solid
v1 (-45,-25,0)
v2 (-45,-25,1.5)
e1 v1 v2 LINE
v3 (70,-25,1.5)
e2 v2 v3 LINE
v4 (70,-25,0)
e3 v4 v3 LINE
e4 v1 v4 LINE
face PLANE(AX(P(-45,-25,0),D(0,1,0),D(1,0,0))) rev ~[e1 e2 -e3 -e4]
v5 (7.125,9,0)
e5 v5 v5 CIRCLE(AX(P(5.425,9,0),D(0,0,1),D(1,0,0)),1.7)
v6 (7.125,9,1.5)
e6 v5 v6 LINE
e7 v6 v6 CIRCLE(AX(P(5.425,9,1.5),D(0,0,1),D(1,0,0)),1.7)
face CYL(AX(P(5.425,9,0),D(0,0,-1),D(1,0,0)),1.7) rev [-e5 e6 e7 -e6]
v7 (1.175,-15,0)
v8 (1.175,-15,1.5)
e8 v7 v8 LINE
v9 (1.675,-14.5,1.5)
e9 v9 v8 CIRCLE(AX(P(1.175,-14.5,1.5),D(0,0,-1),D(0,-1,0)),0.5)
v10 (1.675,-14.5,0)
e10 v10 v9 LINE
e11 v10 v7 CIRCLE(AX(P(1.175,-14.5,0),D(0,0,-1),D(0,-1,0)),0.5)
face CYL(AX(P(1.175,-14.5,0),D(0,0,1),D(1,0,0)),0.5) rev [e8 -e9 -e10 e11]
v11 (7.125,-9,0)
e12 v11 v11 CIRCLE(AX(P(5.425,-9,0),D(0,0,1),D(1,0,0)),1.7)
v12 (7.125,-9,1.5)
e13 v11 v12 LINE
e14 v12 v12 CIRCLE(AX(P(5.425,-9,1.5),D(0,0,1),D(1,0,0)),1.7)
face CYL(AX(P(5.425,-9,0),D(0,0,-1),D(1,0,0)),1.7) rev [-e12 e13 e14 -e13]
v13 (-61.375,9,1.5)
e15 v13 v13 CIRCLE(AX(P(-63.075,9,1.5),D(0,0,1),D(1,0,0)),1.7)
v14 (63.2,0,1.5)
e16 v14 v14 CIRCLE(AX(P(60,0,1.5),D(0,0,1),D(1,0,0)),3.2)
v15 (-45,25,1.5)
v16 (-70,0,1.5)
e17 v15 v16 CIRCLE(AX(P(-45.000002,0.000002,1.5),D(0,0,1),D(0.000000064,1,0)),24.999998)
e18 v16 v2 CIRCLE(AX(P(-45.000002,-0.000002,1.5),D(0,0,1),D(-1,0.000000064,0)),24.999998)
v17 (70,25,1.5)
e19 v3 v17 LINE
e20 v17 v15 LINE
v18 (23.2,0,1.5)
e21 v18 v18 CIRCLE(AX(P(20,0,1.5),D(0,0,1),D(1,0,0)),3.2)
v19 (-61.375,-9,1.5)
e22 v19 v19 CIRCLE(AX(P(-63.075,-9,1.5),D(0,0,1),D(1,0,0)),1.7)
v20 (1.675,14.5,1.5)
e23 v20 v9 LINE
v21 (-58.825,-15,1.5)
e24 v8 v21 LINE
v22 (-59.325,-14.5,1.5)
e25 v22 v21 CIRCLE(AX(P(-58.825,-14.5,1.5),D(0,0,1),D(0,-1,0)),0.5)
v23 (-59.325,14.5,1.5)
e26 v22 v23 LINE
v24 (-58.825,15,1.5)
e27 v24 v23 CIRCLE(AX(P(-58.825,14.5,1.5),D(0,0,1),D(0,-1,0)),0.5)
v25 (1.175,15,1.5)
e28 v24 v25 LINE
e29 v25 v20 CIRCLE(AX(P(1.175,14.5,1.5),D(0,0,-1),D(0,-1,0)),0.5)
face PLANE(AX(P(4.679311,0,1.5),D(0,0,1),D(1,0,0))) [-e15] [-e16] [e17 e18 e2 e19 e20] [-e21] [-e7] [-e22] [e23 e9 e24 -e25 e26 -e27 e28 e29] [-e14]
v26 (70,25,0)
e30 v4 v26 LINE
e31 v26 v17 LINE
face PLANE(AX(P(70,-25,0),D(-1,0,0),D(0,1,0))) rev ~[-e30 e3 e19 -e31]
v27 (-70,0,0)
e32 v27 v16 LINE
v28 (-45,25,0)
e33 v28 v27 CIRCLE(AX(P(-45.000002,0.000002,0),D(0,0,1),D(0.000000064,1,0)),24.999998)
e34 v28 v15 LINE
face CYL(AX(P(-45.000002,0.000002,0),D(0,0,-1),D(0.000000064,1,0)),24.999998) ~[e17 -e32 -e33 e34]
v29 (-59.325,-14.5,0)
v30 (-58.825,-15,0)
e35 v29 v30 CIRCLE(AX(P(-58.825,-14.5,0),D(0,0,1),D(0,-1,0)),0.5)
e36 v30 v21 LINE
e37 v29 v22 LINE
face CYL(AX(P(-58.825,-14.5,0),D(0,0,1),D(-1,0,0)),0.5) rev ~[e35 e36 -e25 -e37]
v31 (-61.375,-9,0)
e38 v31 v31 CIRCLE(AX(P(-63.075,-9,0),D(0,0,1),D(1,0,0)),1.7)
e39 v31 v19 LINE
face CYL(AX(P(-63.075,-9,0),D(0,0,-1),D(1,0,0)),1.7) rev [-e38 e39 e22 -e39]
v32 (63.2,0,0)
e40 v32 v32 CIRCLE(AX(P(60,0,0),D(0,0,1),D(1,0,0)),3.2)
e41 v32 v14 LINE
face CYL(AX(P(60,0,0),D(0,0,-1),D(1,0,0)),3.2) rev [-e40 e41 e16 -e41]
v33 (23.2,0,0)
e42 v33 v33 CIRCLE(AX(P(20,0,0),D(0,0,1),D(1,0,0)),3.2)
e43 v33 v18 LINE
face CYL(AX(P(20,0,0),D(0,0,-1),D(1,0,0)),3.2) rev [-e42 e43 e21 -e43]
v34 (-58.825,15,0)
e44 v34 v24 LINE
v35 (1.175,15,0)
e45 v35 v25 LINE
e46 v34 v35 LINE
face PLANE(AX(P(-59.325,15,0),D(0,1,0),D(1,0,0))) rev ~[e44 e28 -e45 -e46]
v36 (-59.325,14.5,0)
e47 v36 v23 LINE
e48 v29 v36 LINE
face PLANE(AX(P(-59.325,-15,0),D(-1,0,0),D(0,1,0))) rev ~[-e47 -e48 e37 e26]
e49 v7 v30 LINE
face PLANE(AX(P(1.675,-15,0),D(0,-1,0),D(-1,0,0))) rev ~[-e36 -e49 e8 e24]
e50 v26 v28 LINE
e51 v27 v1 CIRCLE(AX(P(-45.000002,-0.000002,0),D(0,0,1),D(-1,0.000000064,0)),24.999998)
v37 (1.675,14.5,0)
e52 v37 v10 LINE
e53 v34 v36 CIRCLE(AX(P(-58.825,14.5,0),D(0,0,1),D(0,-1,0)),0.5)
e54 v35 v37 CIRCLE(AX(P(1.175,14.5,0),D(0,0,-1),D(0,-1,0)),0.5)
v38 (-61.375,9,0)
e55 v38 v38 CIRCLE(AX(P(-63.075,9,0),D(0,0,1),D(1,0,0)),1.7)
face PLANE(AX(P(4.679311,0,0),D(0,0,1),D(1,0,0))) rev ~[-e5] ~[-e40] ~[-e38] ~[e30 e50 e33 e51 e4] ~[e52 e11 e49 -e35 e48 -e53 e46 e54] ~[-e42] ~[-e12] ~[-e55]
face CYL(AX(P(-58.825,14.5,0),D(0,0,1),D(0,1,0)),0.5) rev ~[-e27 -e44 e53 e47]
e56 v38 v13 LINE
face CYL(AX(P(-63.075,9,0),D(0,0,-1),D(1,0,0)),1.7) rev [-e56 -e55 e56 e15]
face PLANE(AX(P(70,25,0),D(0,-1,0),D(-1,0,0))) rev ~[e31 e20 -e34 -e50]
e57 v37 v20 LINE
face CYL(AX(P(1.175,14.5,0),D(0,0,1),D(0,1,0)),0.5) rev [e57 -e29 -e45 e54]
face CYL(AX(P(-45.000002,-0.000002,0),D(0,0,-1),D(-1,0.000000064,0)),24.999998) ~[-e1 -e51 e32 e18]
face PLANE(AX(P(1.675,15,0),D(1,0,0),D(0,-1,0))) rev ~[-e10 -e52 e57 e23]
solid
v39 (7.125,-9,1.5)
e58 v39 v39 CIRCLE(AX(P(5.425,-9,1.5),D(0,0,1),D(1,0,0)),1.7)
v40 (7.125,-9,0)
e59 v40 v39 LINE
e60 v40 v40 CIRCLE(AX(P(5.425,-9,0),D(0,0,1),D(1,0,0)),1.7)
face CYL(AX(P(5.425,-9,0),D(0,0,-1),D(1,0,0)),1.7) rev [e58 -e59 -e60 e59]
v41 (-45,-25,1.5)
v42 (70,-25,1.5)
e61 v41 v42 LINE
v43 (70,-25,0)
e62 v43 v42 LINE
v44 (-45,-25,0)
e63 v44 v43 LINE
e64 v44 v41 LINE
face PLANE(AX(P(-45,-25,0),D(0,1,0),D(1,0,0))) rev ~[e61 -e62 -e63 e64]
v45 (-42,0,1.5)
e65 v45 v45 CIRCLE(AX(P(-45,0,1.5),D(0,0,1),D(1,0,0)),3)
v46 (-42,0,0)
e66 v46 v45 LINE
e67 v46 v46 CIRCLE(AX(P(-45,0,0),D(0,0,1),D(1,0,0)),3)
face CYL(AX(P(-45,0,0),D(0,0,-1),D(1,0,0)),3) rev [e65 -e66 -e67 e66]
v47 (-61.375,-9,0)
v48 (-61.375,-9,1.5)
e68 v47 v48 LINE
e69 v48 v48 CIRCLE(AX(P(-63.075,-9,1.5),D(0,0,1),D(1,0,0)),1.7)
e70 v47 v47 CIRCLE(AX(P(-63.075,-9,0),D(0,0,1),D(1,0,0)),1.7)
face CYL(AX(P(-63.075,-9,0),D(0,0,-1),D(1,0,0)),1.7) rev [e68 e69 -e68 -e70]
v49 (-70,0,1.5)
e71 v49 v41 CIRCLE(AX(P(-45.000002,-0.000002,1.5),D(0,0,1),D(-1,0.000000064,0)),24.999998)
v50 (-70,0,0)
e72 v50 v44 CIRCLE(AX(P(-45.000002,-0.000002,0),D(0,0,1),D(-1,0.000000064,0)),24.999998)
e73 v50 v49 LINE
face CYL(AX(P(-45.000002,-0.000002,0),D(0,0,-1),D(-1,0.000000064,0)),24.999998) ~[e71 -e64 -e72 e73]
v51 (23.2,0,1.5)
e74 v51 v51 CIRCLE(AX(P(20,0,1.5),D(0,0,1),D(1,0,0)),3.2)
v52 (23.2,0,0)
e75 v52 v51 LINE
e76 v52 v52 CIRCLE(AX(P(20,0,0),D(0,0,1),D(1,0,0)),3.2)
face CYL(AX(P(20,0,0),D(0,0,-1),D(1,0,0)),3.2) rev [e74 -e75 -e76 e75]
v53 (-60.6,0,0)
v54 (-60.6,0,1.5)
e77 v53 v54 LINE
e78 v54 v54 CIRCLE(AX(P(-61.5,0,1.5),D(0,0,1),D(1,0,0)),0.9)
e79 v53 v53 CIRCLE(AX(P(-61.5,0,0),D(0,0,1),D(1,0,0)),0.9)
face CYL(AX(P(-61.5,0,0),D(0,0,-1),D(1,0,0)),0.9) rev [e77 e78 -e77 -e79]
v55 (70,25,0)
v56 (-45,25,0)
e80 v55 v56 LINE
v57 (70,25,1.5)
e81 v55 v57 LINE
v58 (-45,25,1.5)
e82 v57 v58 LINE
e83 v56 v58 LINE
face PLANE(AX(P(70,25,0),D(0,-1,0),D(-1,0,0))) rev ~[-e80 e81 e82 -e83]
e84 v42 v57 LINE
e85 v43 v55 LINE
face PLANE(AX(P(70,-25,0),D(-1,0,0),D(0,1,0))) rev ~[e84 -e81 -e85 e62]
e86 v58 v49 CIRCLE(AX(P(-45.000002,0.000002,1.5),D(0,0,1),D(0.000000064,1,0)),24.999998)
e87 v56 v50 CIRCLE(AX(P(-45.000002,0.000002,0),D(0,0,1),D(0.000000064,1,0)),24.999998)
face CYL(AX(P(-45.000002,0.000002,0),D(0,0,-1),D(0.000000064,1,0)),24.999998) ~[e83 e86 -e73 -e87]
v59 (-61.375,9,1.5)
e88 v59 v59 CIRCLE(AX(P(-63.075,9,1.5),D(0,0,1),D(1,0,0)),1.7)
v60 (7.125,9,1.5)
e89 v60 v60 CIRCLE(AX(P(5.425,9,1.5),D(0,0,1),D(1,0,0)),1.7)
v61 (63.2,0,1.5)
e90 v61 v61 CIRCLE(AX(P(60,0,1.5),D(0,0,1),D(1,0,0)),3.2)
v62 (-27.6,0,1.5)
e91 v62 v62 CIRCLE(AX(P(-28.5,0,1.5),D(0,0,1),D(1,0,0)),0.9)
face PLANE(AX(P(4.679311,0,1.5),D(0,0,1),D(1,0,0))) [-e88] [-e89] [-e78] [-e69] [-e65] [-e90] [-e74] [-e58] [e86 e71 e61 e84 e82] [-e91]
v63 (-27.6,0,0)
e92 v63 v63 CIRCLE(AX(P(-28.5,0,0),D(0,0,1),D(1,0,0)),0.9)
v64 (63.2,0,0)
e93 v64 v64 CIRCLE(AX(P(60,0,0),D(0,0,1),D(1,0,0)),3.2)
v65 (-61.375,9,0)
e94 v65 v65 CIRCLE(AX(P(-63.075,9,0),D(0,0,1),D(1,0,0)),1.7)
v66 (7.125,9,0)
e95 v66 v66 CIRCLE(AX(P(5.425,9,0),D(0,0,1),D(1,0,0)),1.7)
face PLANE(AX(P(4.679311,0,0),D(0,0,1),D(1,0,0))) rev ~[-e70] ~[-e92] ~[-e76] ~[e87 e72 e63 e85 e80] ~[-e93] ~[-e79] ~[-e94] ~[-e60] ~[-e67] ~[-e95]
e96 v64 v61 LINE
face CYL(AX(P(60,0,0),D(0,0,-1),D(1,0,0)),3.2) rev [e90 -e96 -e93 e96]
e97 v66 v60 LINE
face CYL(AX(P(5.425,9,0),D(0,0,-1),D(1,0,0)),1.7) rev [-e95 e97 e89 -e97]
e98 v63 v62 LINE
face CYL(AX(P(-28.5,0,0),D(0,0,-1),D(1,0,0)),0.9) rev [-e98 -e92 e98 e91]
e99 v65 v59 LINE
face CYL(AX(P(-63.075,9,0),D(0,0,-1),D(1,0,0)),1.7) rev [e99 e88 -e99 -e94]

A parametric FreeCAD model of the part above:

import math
import FreeCAD as App
import Part
import Sketcher
from FreeCAD import Vector
Q = App.Units.Quantity


def edges_at(feature, points):
    """Names of the edges that pass closest to the given points."""
    edges = feature.Shape.Edges
    near = lambda p: min(range(len(edges)), key=lambda i: edges[i].distToShape(Part.Vertex(*p))[0])
    return sorted({f"Edge{near(p) + 1}" for p in points})

doc = App.newDocument("Part")
body = doc.addObject("PartDesign::Body", "Body")

sketch1 = doc.addObject("Sketcher::SketchObject", "Sketch")
body.addObject(sketch1)
sketch1.AttachmentSupport = (doc.XY_Plane, [""])
sketch1.MapMode = "FlatFace"
sketch1.addGeometry(Part.LineSegment(Vector(70, -25, 0), Vector(70, 25, 0)), False)
sketch1.addGeometry(Part.LineSegment(Vector(70, 25, 0), Vector(-45, 25, 0)), False)
sketch1.addGeometry(Part.ArcOfCircle(Part.Circle(Vector(-45, 0, 0), Vector(0, 0, 1), 25), math.radians(90), math.radians(180)), False)
sketch1.addGeometry(Part.ArcOfCircle(Part.Circle(Vector(-45, 0, 0), Vector(0, 0, 1), 25), math.radians(180), math.radians(270)), False)
sketch1.addGeometry(Part.LineSegment(Vector(-45, -25, 0), Vector(70, -25, 0)), False)
sketch1.addGeometry(Part.Circle(Vector(-63.1, -9, 0), Vector(0, 0, 1), 1.7), False)
sketch1.addGeometry(Part.Circle(Vector(-61.5, 0, 0), Vector(0, 0, 1), 0.9), False)
sketch1.addGeometry(Part.Circle(Vector(-45, 0, 0), Vector(0, 0, 1), 3), False)
sketch1.addGeometry(Part.Circle(Vector(-28.5, 0, 0), Vector(0, 0, 1), 0.9), False)
sketch1.addGeometry(Part.Circle(Vector(5.4, -9, 0), Vector(0, 0, 1), 1.7), False)
sketch1.addGeometry(Part.Circle(Vector(20, 0, 0), Vector(0, 0, 1), 3.2), False)
sketch1.addGeometry(Part.Circle(Vector(60, 0, 0), Vector(0, 0, 1), 3.2), False)
sketch1.addGeometry(Part.Circle(Vector(-63.1, 9, 0), Vector(0, 0, 1), 1.7), False)
sketch1.addGeometry(Part.Circle(Vector(5.4, 9, 0), Vector(0, 0, 1), 1.7), False)
sketch1.addConstraint(Sketcher.Constraint("Coincident", 0, 2, 1, 1))
sketch1.addConstraint(Sketcher.Constraint("Tangent", 1, 2, 2, 1))
sketch1.addConstraint(Sketcher.Constraint("Tangent", 2, 2, 3, 1))
sketch1.addConstraint(Sketcher.Constraint("Tangent", 3, 2, 4, 1))
sketch1.addConstraint(Sketcher.Constraint("Coincident", 4, 2, 0, 1))
sketch1.addConstraint(Sketcher.Constraint("Vertical", 0))
sketch1.addConstraint(Sketcher.Constraint("Horizontal", 1))
sketch1.addConstraint(Sketcher.Constraint("Horizontal", 4))
sketch1.addConstraint(Sketcher.Constraint("Coincident", 7, 3, 2, 3))
sketch1.addConstraint(Sketcher.Constraint("Equal", 2, 3))
sketch1.addConstraint(Sketcher.Constraint("Equal", 6, 8))
sketch1.addConstraint(Sketcher.Constraint("Equal", 5, 9))
sketch1.addConstraint(Sketcher.Constraint("Equal", 10, 11))
sketch1.addConstraint(Sketcher.Constraint("Equal", 9, 12))
sketch1.addConstraint(Sketcher.Constraint("Equal", 12, 13))
sketch1.addConstraint(Sketcher.Constraint("Symmetric", 5, 3, 12, 3, -1))
sketch1.addConstraint(Sketcher.Constraint("Symmetric", 9, 3, 13, 3, -1))
sketch1.addConstraint(Sketcher.Constraint("PointOnObject", 2, 3, -1))
sketch1.addConstraint(Sketcher.Constraint("PointOnObject", 6, 3, -1))
sketch1.addConstraint(Sketcher.Constraint("PointOnObject", 8, 3, -1))
sketch1.addConstraint(Sketcher.Constraint("PointOnObject", 10, 3, -1))
sketch1.addConstraint(Sketcher.Constraint("PointOnObject", 11, 3, -1))
sketch1.addConstraint(Sketcher.Constraint("PointOnObject", 2, 2, -1))
sketch1.addConstraint(Sketcher.Constraint("Horizontal", 5, 3, 9, 3))
sketch1.addConstraint(Sketcher.Constraint("Diameter", 7, Q("6 mm")))
sketch1.addConstraint(Sketcher.Constraint("Radius", 2, Q("24.999998 mm")))
sketch1.addConstraint(Sketcher.Constraint("Diameter", 5, Q("3.4 mm")))
sketch1.addConstraint(Sketcher.Constraint("Diameter", 6, Q("1.8 mm")))
sketch1.addConstraint(Sketcher.Constraint("Diameter", 10, Q("6.4 mm")))
sketch1.addConstraint(Sketcher.Constraint("DistanceX", 1, 2, 1, 1, Q("115 mm")))
sketch1.addConstraint(Sketcher.Constraint("DistanceX", 2, 3, -1, 1, Q("45.000002 mm")))
sketch1.addConstraint(Sketcher.Constraint("DistanceY", 5, 3, -1, 1, Q("9 mm")))
sketch1.addConstraint(Sketcher.Constraint("DistanceX", -1, 1, 10, 3, Q("20 mm")))
sketch1.addConstraint(Sketcher.Constraint("DistanceX", -1, 1, 11, 3, Q("60 mm")))
sketch1.addConstraint(Sketcher.Constraint("DistanceX", 6, 3, 8, 3, Q("33 mm")))
sketch1.addConstraint(Sketcher.Constraint("DistanceX", 6, 3, -1, 1, Q("61.5 mm")))
sketch1.addConstraint(Sketcher.Constraint("DistanceX", 5, 3, -1, 1, Q("63.075 mm")))
sketch1.addConstraint(Sketcher.Constraint("DistanceX", -1, 1, 9, 3, Q("5.425 mm")))
pad1 = doc.addObject("PartDesign::Pad", "Pad")
body.addObject(pad1)
pad1.Profile = sketch1
pad1.Length = 1.5
body2 = doc.addObject("PartDesign::Body", "Body001")

sketch2 = doc.addObject("Sketcher::SketchObject", "Sketch001")
body2.addObject(sketch2)
sketch2.AttachmentSupport = (doc.getObject("XY_Plane001"), [""])
sketch2.MapMode = "FlatFace"
sketch2.addGeometry(Part.LineSegment(Vector(70, -25, 0), Vector(70, 25, 0)), False)
sketch2.addGeometry(Part.LineSegment(Vector(70, 25, 0), Vector(-45, 25, 0)), False)
sketch2.addGeometry(Part.ArcOfCircle(Part.Circle(Vector(-45, 0, 0), Vector(0, 0, 1), 25), math.radians(90), math.radians(180)), False)
sketch2.addGeometry(Part.ArcOfCircle(Part.Circle(Vector(-45, 0, 0), Vector(0, 0, 1), 25), math.radians(180), math.radians(270)), False)
sketch2.addGeometry(Part.LineSegment(Vector(-45, -25, 0), Vector(70, -25, 0)), False)
sketch2.addGeometry(Part.Circle(Vector(-63.1, -9, 0), Vector(0, 0, 1), 1.7), False)
sketch2.addGeometry(Part.Circle(Vector(5.4, -9, 0), Vector(0, 0, 1), 1.7), False)
sketch2.addGeometry(Part.LineSegment(Vector(-59.3, 15, 0), Vector(1.7, 15, 0)), False)
sketch2.addGeometry(Part.LineSegment(Vector(1.7, 15, 0), Vector(1.7, -15, 0)), False)
sketch2.addGeometry(Part.LineSegment(Vector(1.7, -15, 0), Vector(-59.3, -15, 0)), False)
sketch2.addGeometry(Part.LineSegment(Vector(-59.3, -15, 0), Vector(-59.3, 15, 0)), False)
sketch2.addGeometry(Part.Circle(Vector(-63.1, 9, 0), Vector(0, 0, 1), 1.7), False)
sketch2.addGeometry(Part.Circle(Vector(20, 0, 0), Vector(0, 0, 1), 3.2), False)
sketch2.addGeometry(Part.Circle(Vector(60, 0, 0), Vector(0, 0, 1), 3.2), False)
sketch2.addGeometry(Part.Circle(Vector(5.4, 9, 0), Vector(0, 0, 1), 1.7), False)
sketch2.addConstraint(Sketcher.Constraint("Coincident", 0, 2, 1, 1))
sketch2.addConstraint(Sketcher.Constraint("Tangent", 1, 2, 2, 1))
sketch2.addConstraint(Sketcher.Constraint("Tangent", 2, 2, 3, 1))
sketch2.addConstraint(Sketcher.Constraint("Tangent", 3, 2, 4, 1))
sketch2.addConstraint(Sketcher.Constraint("Coincident", 4, 2, 0, 1))
sketch2.addConstraint(Sketcher.Constraint("Coincident", 7, 2, 8, 1))
sketch2.addConstraint(Sketcher.Constraint("Coincident", 8, 2, 9, 1))
sketch2.addConstraint(Sketcher.Constraint("Coincident", 9, 2, 10, 1))
sketch2.addConstraint(Sketcher.Constraint("Coincident", 10, 2, 7, 1))
sketch2.addConstraint(Sketcher.Constraint("Vertical", 0))
sketch2.addConstraint(Sketcher.Constraint("Horizontal", 1))
sketch2.addConstraint(Sketcher.Constraint("Horizontal", 4))
sketch2.addConstraint(Sketcher.Constraint("Horizontal", 7))
sketch2.addConstraint(Sketcher.Constraint("Vertical", 8))
sketch2.addConstraint(Sketcher.Constraint("Horizontal", 9))
sketch2.addConstraint(Sketcher.Constraint("Vertical", 10))
sketch2.addConstraint(Sketcher.Constraint("Equal", 2, 3))
sketch2.addConstraint(Sketcher.Constraint("Equal", 5, 6))
sketch2.addConstraint(Sketcher.Constraint("Equal", 6, 11))
sketch2.addConstraint(Sketcher.Constraint("Equal", 12, 13))
sketch2.addConstraint(Sketcher.Constraint("Equal", 11, 14))
sketch2.addConstraint(Sketcher.Constraint("Symmetric", 5, 3, 11, 3, -1))
sketch2.addConstraint(Sketcher.Constraint("Symmetric", 6, 3, 14, 3, -1))
sketch2.addConstraint(Sketcher.Constraint("PointOnObject", 2, 3, -1))
sketch2.addConstraint(Sketcher.Constraint("PointOnObject", 12, 3, -1))
sketch2.addConstraint(Sketcher.Constraint("PointOnObject", 13, 3, -1))
sketch2.addConstraint(Sketcher.Constraint("PointOnObject", 2, 2, -1))
sketch2.addConstraint(Sketcher.Constraint("Horizontal", 5, 3, 6, 3))
sketch2.addConstraint(Sketcher.Constraint("Radius", 2, Q("24.999998 mm")))
sketch2.addConstraint(Sketcher.Constraint("Diameter", 5, Q("3.4 mm")))
sketch2.addConstraint(Sketcher.Constraint("Diameter", 12, Q("6.4 mm")))
sketch2.addConstraint(Sketcher.Constraint("DistanceX", 1, 2, 1, 1, Q("115 mm")))
sketch2.addConstraint(Sketcher.Constraint("DistanceX", 7, 1, 7, 2, Q("61 mm")))
sketch2.addConstraint(Sketcher.Constraint("DistanceY", 8, 2, 8, 1, Q("30 mm")))
sketch2.addConstraint(Sketcher.Constraint("DistanceX", 2, 3, -1, 1, Q("45.000002 mm")))
sketch2.addConstraint(Sketcher.Constraint("DistanceY", 5, 3, -1, 1, Q("9 mm")))
sketch2.addConstraint(Sketcher.Constraint("DistanceX", -1, 1, 12, 3, Q("20 mm")))
sketch2.addConstraint(Sketcher.Constraint("DistanceX", -1, 1, 13, 3, Q("60 mm")))
sketch2.addConstraint(Sketcher.Constraint("DistanceY", -1, 1, 7, 2, Q("15 mm")))
sketch2.addConstraint(Sketcher.Constraint("DistanceX", 5, 3, 6, 3, Q("68.5 mm")))
sketch2.addConstraint(Sketcher.Constraint("DistanceX", 7, 2, 14, 3, Q("3.75 mm")))
sketch2.addConstraint(Sketcher.Constraint("DistanceX", 5, 3, -1, 1, Q("63.075 mm")))
pad2 = doc.addObject("PartDesign::Pad", "Pad001")
body2.addObject(pad2)
pad2.Profile = sketch2
pad2.Length = 1.5
doc.recompute()

fillet = doc.addObject("PartDesign::Fillet", "Fillet")
body2.addObject(fillet)
fillet.Base = (pad2, edges_at(pad2, [
    (-59.325, 15, 0.75),
    (-59.325, -15, 0.75),
    (1.675, -15, 0.75),
    (1.675, 15, 0.75),
]))
fillet.Radius = 0.5

doc.recompute()
